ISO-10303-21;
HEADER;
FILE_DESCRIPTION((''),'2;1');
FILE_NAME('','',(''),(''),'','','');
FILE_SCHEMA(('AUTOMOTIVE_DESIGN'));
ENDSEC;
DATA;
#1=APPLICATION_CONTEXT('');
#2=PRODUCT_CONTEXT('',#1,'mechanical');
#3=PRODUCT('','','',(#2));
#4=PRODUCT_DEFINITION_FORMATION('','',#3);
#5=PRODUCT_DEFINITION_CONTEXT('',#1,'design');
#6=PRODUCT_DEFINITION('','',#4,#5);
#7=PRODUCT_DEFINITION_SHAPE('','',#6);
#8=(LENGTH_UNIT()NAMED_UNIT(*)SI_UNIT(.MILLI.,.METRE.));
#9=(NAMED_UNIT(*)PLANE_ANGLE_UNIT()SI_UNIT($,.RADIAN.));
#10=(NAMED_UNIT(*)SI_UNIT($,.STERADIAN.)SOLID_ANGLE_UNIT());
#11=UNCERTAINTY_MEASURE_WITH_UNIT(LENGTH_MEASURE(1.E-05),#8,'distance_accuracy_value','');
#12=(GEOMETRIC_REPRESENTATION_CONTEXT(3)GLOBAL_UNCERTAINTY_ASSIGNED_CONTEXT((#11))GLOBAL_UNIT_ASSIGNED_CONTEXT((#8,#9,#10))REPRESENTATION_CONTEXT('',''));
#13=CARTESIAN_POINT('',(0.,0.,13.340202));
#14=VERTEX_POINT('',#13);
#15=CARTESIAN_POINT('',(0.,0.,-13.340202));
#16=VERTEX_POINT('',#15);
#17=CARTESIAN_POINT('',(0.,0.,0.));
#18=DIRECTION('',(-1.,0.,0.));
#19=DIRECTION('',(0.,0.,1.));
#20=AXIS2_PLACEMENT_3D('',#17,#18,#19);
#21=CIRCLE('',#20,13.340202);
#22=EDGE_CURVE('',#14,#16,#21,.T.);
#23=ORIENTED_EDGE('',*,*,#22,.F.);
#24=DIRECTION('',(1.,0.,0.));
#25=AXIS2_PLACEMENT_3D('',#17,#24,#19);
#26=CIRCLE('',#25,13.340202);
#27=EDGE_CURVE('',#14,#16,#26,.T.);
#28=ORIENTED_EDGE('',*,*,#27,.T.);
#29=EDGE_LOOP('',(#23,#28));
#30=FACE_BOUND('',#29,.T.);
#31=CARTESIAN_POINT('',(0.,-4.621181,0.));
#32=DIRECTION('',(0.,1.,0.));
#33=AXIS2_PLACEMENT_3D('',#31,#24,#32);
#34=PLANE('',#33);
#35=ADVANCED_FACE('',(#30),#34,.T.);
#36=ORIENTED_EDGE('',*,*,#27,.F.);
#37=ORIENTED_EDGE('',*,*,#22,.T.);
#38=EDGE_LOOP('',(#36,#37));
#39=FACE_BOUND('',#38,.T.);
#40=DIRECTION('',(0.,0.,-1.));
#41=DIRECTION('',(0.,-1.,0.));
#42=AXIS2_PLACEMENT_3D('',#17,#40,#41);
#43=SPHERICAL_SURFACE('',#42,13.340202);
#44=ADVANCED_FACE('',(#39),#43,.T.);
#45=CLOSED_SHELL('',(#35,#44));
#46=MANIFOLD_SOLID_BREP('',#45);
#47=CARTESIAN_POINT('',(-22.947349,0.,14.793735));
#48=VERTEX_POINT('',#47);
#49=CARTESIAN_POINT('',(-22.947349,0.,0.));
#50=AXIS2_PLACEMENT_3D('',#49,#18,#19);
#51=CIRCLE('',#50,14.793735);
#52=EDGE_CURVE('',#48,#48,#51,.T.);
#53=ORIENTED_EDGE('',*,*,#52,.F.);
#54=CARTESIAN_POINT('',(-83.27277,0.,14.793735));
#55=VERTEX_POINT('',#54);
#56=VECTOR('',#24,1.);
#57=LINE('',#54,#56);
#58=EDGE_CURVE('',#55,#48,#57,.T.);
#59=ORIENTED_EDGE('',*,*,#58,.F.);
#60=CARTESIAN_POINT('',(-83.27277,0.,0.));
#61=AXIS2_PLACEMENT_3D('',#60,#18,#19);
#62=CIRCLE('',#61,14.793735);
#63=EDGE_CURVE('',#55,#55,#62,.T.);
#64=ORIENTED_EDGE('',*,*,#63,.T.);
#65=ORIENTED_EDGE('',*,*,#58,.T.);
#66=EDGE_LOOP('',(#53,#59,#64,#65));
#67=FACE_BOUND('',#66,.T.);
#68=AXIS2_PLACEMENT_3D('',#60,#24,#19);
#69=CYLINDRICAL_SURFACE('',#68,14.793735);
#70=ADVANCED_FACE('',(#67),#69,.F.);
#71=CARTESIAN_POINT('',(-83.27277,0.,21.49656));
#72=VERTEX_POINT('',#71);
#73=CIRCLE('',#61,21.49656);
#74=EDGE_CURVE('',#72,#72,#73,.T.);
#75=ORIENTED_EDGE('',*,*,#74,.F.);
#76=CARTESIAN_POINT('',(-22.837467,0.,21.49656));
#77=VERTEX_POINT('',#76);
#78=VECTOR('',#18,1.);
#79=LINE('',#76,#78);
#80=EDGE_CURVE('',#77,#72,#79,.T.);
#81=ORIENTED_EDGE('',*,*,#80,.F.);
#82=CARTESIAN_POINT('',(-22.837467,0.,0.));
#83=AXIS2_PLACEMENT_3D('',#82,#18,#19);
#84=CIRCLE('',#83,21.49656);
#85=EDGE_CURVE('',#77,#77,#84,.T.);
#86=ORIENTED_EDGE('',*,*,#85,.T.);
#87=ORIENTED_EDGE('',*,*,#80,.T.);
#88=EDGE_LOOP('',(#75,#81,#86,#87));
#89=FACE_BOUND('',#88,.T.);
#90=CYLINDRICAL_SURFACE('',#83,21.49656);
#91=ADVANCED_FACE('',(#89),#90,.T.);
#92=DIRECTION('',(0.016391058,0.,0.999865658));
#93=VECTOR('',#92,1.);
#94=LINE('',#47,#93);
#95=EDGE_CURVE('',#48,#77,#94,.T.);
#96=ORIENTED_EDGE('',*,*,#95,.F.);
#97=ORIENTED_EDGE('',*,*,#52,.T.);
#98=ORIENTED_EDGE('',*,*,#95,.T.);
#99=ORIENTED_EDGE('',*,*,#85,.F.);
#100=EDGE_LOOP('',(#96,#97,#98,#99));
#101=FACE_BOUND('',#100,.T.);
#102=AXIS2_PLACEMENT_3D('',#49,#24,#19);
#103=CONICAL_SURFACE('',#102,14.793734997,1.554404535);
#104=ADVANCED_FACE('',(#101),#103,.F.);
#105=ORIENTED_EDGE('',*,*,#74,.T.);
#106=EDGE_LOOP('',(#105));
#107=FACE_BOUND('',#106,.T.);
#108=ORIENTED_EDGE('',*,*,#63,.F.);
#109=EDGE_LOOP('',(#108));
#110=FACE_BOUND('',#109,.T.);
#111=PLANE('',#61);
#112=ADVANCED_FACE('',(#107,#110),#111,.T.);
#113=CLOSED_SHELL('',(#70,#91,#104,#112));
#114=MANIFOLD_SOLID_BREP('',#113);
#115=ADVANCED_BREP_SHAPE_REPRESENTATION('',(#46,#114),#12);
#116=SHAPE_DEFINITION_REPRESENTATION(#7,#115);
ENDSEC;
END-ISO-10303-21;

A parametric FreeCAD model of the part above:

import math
import FreeCAD as App
import Part
import Sketcher
from FreeCAD import Vector

doc = App.newDocument("Part")
params = doc.addObject("Spreadsheet::Sheet", "Params")
for row, (alias, value) in enumerate([
    ("revolution_angle", "180 deg"),
    ("revolution2_angle", "360 deg"),
], start=1):
    params.set(f"A{row}", alias)
    params.set(f"B{row}", "=" + value)
    params.setAlias(f"B{row}", alias)

body = doc.addObject("PartDesign::Body", "Body")

# Sketch on YZ plane
sketch1 = doc.addObject("Sketcher::SketchObject", "Sketch")
body.addObject(sketch1)
sketch1.AttachmentSupport = (doc.YZ_Plane, [""])
sketch1.MapMode = "FlatFace"
sketch1.addGeometry([
    Part.LineSegment(Vector(0, -13, 0), Vector(0, 13, 0)),
    Part.ArcOfCircle(Part.Circle(Vector(0, 0, 0), Vector(0, 0, 1), 13), math.radians(90), math.radians(270)),
], False)
sketch1.addConstraint([
    Sketcher.Constraint("Coincident", 0, 1, 1, 2),
    Sketcher.Constraint("Coincident", 1, 1, 0, 2),
    Sketcher.Constraint("Vertical", 0),
    Sketcher.Constraint("Coincident", 1, 3, -1, 1),
    Sketcher.Constraint("PointOnObject", 0, 1, -2),
    Sketcher.Constraint("Radius", 1, 13.340202),
])
revolution = doc.addObject("PartDesign::Revolution", "Revolution")
body.addObject(revolution)
revolution.Profile = sketch1
revolution.ReferenceAxis = (sketch1, ["V_Axis"])
revolution.setExpression("Angle", "Params.revolution_angle")
revolution.Reversed = True
body2 = doc.addObject("PartDesign::Body", "Body001")

# Sketch on XZ plane
sketch2 = doc.addObject("Sketcher::SketchObject", "Sketch001")
body2.addObject(sketch2)
sketch2.AttachmentSupport = (doc.getObject("XZ_Plane001"), [""])
sketch2.MapMode = "FlatFace"
sketch2.addGeometry([
    Part.LineSegment(Vector(-83, 15, 0), Vector(-23, 15, 0)),
    Part.LineSegment(Vector(-23, 15, 0), Vector(-23, 21, 0)),
    Part.LineSegment(Vector(-23, 21, 0), Vector(-83, 21, 0)),
    Part.LineSegment(Vector(-83, 21, 0), Vector(-83, 15, 0)),
], False)
sketch2.addConstraint([
    Sketcher.Constraint("Coincident", 0, 2, 1, 1),
    Sketcher.Constraint("Coincident", 1, 2, 2, 1),
    Sketcher.Constraint("Coincident", 2, 2, 3, 1),
    Sketcher.Constraint("Coincident", 3, 2, 0, 1),
    Sketcher.Constraint("Horizontal", 0),
    Sketcher.Constraint("Horizontal", 2),
    Sketcher.Constraint("Vertical", 3),
    Sketcher.Constraint("DistanceX", 0, 1, 0, 2, 60.325421),
    Sketcher.Constraint("DistanceX", 2, 2, 2, 1, 60.435303),
    Sketcher.Constraint("DistanceY", 3, 2, 3, 1, 6.702825),
    Sketcher.Constraint("DistanceX", 0, 2, -1, 1, 22.947349),
    Sketcher.Constraint("DistanceY", -1, 1, 1, 2, 21.49656),
])
revolution2 = doc.addObject("PartDesign::Revolution", "Revolution001")
body2.addObject(revolution2)
revolution2.Profile = sketch2
revolution2.ReferenceAxis = (sketch2, ["H_Axis"])
revolution2.setExpression("Angle", "Params.revolution2_angle")

doc.recompute()
